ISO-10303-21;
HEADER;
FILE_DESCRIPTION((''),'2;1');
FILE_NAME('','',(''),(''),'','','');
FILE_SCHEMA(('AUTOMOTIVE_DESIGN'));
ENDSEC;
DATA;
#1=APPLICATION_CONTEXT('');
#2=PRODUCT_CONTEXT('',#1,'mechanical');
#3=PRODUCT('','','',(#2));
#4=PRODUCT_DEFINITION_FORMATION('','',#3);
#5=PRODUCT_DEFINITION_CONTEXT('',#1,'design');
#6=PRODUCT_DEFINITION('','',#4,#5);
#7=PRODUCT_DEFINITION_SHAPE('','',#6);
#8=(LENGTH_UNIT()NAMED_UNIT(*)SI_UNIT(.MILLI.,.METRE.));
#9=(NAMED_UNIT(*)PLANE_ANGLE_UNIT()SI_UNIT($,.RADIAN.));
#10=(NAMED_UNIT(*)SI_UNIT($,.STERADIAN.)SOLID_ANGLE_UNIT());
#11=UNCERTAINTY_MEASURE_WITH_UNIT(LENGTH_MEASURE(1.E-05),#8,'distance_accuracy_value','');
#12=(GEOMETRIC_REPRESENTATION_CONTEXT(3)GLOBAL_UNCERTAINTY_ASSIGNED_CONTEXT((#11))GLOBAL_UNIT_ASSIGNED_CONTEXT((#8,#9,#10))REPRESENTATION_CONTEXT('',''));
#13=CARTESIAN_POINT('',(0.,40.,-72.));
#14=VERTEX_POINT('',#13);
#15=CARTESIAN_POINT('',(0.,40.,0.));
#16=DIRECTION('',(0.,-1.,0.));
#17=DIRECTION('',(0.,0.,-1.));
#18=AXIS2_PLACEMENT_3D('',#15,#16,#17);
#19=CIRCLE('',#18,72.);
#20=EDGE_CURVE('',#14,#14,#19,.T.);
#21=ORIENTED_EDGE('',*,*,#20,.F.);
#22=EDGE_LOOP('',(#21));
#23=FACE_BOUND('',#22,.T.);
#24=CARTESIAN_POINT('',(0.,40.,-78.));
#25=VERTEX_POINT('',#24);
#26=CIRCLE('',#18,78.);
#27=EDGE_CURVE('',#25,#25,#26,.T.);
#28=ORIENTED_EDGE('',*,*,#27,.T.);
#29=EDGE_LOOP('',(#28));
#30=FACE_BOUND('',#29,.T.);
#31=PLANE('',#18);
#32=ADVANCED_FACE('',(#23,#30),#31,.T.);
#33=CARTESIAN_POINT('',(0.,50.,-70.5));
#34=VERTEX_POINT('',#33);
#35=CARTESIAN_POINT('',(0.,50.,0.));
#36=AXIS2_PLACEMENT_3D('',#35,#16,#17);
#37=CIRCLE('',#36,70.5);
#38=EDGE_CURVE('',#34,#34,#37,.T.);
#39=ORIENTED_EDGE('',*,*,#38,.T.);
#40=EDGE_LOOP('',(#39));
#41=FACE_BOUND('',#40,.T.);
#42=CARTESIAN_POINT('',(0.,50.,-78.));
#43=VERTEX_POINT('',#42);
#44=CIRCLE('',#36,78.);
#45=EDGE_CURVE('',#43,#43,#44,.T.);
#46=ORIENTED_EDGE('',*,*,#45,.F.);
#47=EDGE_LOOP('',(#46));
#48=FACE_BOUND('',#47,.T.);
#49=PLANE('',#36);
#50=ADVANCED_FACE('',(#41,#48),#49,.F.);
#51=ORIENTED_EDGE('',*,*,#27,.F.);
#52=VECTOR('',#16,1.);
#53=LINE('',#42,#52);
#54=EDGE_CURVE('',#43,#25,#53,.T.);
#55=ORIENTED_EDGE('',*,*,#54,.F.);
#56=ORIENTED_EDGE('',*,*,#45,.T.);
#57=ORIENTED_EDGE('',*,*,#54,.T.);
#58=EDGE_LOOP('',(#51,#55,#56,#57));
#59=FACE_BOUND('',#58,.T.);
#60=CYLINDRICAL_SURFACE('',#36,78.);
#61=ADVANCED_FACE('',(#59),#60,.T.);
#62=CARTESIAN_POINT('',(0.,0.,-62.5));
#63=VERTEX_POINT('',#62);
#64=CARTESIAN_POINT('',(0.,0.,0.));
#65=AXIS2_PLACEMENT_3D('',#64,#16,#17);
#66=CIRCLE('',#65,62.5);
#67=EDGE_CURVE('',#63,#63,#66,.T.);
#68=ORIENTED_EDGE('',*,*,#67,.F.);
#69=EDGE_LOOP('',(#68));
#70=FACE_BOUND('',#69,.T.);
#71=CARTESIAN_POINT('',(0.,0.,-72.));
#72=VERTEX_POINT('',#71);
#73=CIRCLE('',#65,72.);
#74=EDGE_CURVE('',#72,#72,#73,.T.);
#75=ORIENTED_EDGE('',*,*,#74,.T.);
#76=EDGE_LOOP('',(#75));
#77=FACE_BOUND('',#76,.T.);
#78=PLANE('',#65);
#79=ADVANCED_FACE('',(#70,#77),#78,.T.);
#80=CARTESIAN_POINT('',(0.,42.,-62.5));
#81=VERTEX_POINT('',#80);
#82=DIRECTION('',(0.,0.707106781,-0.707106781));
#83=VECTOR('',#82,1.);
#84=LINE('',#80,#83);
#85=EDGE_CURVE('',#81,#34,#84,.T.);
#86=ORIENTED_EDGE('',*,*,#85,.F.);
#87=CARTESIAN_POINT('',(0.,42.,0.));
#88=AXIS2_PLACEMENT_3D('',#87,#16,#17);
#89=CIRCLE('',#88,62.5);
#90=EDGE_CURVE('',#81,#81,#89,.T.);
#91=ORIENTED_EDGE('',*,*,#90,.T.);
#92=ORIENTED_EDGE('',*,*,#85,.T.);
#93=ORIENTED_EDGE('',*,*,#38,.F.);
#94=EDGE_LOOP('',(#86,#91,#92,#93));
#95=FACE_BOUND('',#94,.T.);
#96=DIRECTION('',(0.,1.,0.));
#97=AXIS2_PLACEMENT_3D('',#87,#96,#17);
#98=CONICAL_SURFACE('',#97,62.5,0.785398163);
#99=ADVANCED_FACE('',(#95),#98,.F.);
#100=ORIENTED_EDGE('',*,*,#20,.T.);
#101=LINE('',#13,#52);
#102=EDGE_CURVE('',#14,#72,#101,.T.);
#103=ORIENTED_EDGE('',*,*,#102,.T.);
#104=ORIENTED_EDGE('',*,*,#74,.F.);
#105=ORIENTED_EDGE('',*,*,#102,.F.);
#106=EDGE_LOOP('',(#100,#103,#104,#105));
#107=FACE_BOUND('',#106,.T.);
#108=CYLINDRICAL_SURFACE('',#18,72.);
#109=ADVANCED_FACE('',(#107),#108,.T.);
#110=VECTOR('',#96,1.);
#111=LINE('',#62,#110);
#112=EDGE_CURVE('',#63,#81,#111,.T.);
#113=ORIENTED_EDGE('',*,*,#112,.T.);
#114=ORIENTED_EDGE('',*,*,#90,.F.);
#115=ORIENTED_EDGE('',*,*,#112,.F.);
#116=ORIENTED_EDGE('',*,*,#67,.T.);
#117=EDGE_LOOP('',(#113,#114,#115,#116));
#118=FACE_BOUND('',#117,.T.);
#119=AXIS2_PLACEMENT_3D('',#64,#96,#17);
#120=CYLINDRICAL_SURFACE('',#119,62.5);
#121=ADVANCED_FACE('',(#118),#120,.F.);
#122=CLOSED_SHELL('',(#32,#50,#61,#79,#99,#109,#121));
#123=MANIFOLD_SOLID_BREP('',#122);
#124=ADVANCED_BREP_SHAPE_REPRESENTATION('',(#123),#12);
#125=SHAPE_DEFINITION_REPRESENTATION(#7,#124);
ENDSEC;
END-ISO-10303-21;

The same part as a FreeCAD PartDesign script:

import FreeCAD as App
import Part
import Sketcher
from FreeCAD import Vector
Q = App.Units.Quantity


def add_polygon(sketch, points):
    """Adds a closed chain of lines whose ends are joined by coincident constraints."""
    first, n = sketch.GeometryCount, len(points)
    for a, b in zip(points, points[1:] + points[:1]):
        sketch.addGeometry(Part.LineSegment(App.Vector(*a, 0), App.Vector(*b, 0)), False)
    for i in range(n):
        sketch.addConstraint(Sketcher.Constraint("Coincident", first + i, 2, first + (i + 1) % n, 1))

doc = App.newDocument("Part")
body = doc.addObject("PartDesign::Body", "Body")

# Sketch on YZ plane
sketch1 = body.newObject("Sketcher::SketchObject", "Sketch")
sketch1.AttachmentSupport = (doc.getObject("YZ_Plane"), [""])
sketch1.MapMode = "FlatFace"
add_polygon(sketch1, [(42, -62), (0, -62), (0, -72), (40, -72), (40, -78), (50, -78), (50, -70)])  # lines 0-6
sketch1.addConstraint(Sketcher.Constraint("Horizontal", 0))
sketch1.addConstraint(Sketcher.Constraint("Vertical", 1))
sketch1.addConstraint(Sketcher.Constraint("Horizontal", 2))
sketch1.addConstraint(Sketcher.Constraint("Vertical", 3))
sketch1.addConstraint(Sketcher.Constraint("Horizontal", 4))
sketch1.addConstraint(Sketcher.Constraint("Vertical", 5))
sketch1.addConstraint(Sketcher.Constraint("PointOnObject", 0, 2, -2))
sketch1.addConstraint(Sketcher.Constraint("DistanceX", 0, 2, 0, 1, Q("42 mm")))
sketch1.addConstraint(Sketcher.Constraint("DistanceX", 2, 1, 2, 2, Q("40 mm")))
sketch1.addConstraint(Sketcher.Constraint("DistanceX", 4, 1, 4, 2, Q("10 mm")))
sketch1.addConstraint(Sketcher.Constraint("DistanceY", 3, 2, 3, 1, Q("6 mm")))
sketch1.addConstraint(Sketcher.Constraint("Angle", 6, Q("135 deg")))
sketch1.addConstraint(Sketcher.Constraint("DistanceY", 1, 2, 1, 1, Q("9.5 mm")))
sketch1.addConstraint(Sketcher.Constraint("DistanceY", 1, 2, -1, 1, Q("72 mm")))
revolution = body.newObject("PartDesign::Revolution", "Revolution")
revolution.Profile = sketch1
revolution.ReferenceAxis = (sketch1, ["H_Axis"])
revolution.Angle = 360

doc.recompute()
